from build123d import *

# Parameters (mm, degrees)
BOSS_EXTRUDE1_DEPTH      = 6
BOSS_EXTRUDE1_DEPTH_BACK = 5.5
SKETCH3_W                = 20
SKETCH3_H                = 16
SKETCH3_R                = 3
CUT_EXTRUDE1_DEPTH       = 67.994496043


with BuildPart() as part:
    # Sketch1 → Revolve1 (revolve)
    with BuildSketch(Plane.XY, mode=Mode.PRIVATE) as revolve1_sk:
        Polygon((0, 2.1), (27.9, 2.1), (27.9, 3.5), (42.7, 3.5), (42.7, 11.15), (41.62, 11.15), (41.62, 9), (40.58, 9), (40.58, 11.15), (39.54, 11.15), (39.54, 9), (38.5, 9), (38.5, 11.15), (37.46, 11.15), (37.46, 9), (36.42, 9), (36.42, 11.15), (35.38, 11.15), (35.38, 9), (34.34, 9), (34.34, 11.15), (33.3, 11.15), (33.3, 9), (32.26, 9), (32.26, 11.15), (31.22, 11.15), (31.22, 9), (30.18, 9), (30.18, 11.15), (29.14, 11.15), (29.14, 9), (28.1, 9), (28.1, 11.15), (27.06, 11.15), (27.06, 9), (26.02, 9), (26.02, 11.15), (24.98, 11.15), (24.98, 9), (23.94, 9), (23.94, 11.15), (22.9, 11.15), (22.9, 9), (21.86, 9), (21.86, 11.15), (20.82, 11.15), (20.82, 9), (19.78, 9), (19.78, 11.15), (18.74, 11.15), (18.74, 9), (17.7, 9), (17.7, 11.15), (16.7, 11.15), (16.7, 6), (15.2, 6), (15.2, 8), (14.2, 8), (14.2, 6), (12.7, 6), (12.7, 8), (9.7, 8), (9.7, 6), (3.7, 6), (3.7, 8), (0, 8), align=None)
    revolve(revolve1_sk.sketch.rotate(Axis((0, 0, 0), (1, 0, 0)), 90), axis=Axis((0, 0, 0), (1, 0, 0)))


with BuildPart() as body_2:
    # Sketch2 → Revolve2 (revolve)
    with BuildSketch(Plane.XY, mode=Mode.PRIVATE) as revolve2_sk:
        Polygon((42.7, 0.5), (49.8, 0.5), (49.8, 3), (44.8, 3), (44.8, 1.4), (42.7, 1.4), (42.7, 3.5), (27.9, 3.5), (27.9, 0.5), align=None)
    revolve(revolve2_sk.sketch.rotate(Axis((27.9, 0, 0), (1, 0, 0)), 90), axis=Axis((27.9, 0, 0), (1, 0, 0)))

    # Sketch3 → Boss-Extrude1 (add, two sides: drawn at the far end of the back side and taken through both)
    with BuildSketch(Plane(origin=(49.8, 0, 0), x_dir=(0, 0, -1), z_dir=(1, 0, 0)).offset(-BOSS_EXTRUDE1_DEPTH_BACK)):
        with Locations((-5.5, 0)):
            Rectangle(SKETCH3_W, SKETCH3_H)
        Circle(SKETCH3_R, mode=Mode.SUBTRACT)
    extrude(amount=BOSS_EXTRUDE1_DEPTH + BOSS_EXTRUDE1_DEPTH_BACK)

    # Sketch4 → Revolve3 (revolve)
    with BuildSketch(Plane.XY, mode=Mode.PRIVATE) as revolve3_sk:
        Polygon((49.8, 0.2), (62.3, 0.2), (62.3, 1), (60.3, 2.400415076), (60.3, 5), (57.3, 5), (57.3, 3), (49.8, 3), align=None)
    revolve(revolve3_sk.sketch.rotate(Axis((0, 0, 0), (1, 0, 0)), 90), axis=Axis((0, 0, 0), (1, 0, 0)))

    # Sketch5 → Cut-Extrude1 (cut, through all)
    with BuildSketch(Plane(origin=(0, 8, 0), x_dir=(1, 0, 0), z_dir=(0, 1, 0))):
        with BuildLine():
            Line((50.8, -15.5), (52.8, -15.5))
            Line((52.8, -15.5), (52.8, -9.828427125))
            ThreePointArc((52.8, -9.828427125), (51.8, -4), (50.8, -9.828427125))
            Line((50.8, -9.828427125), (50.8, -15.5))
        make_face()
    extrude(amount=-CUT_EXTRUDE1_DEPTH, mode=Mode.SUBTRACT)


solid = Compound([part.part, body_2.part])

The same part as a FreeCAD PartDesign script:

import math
import FreeCAD as App
import Part
import Sketcher
from FreeCAD import Vector
Q = App.Units.Quantity


def add_polygon(sketch, points):
    """Adds a closed chain of lines whose ends are joined by coincident constraints."""
    first, n = sketch.GeometryCount, len(points)
    for a, b in zip(points, points[1:] + points[:1]):
        sketch.addGeometry(Part.LineSegment(App.Vector(*a, 0), App.Vector(*b, 0)), False)
    for i in range(n):
        sketch.addConstraint(Sketcher.Constraint("Coincident", first + i, 2, first + (i + 1) % n, 1))

doc = App.newDocument("Part")
body = doc.addObject("PartDesign::Body", "Body")

# Sketch on XY plane
sketch1 = body.newObject("Sketcher::SketchObject", "Sketch")
sketch1.AttachmentSupport = (doc.getObject("XY_Plane"), [""])
sketch1.MapMode = "FlatFace"
add_polygon(sketch1, [(0, 2.1), (27.9, 2.1), (27.9, 3.5), (42.7, 3.5), (42.7, 11.2), (41.6, 11.2), (41.6, 9), (40.6, 9), (40.6, 11.2), (39.5, 11.2), (39.5, 9), (38.5, 9), (38.5, 11.2), (37.5, 11.2), (37.5, 9), (36.4, 9), (36.4, 11.2), (35.4, 11.2), (35.4, 9), (34.3, 9), (34.3, 11.2), (33.3, 11.2), (33.3, 9), (32.3, 9), (32.3, 11.2), (31.2, 11.2), (31.2, 9), (30.2, 9), (30.2, 11.2), (29.1, 11.2), (29.1, 9), (28.1, 9), (28.1, 11.2), (27.1, 11.2), (27.1, 9), (26, 9), (26, 11.2), (25, 11.2), (25, 9), (23.9, 9), (23.9, 11.2), (22.9, 11.2), (22.9, 9), (21.9, 9), (21.9, 11.2), (20.8, 11.2), (20.8, 9), (19.8, 9), (19.8, 11.2), (18.7, 11.2), (18.7, 9), (17.7, 9), (17.7, 11.2), (16.7, 11.2), (16.7, 6), (15.2, 6), (15.2, 8), (14.2, 8), (14.2, 6), (12.7, 6), (12.7, 8), (9.7, 8), (9.7, 6), (3.7, 6), (3.7, 8), (0, 8)])  # lines 0-65
sketch1.addConstraint([
    Sketcher.Constraint("Horizontal", 0),
    Sketcher.Constraint("Vertical", 1),
    Sketcher.Constraint("Horizontal", 2),
    Sketcher.Constraint("Vertical", 3),
    Sketcher.Constraint("Horizontal", 4),
    Sketcher.Constraint("Vertical", 5),
    Sketcher.Constraint("Horizontal", 6),
    Sketcher.Constraint("Vertical", 7),
    Sketcher.Constraint("Horizontal", 8),
    Sketcher.Constraint("Vertical", 9),
    Sketcher.Constraint("Horizontal", 10),
    Sketcher.Constraint("Vertical", 11),
    Sketcher.Constraint("Horizontal", 12),
    Sketcher.Constraint("Vertical", 13),
    Sketcher.Constraint("Horizontal", 14),
    Sketcher.Constraint("Vertical", 15),
    Sketcher.Constraint("Horizontal", 16),
    Sketcher.Constraint("Vertical", 17),
    Sketcher.Constraint("Horizontal", 18),
    Sketcher.Constraint("Vertical", 19),
    Sketcher.Constraint("Horizontal", 20),
    Sketcher.Constraint("Vertical", 21),
    Sketcher.Constraint("Horizontal", 22),
    Sketcher.Constraint("Vertical", 23),
    Sketcher.Constraint("Horizontal", 24),
    Sketcher.Constraint("Vertical", 25),
    Sketcher.Constraint("Horizontal", 26),
    Sketcher.Constraint("Vertical", 27),
    Sketcher.Constraint("Horizontal", 28),
    Sketcher.Constraint("Vertical", 29),
    Sketcher.Constraint("Horizontal", 30),
    Sketcher.Constraint("Vertical", 31),
    Sketcher.Constraint("Horizontal", 32),
    Sketcher.Constraint("Vertical", 33),
    Sketcher.Constraint("Horizontal", 34),
    Sketcher.Constraint("Vertical", 35),
    Sketcher.Constraint("Horizontal", 36),
    Sketcher.Constraint("Vertical", 37),
    Sketcher.Constraint("Horizontal", 38),
    Sketcher.Constraint("Vertical", 39),
    Sketcher.Constraint("Horizontal", 40),
    Sketcher.Constraint("Vertical", 41),
    Sketcher.Constraint("Horizontal", 42),
    Sketcher.Constraint("Vertical", 43),
    Sketcher.Constraint("Horizontal", 44),
    Sketcher.Constraint("Vertical", 45),
    Sketcher.Constraint("Horizontal", 46),
    Sketcher.Constraint("Vertical", 47),
    Sketcher.Constraint("Horizontal", 48),
    Sketcher.Constraint("Vertical", 49),
    Sketcher.Constraint("Horizontal", 50),
    Sketcher.Constraint("Vertical", 51),
    Sketcher.Constraint("Horizontal", 52),
    Sketcher.Constraint("Vertical", 53),
    Sketcher.Constraint("Horizontal", 54),
    Sketcher.Constraint("Vertical", 55),
    Sketcher.Constraint("Horizontal", 56),
    Sketcher.Constraint("Vertical", 57),
    Sketcher.Constraint("Horizontal", 58),
    Sketcher.Constraint("Vertical", 59),
    Sketcher.Constraint("Horizontal", 60),
    Sketcher.Constraint("Vertical", 61),
    Sketcher.Constraint("Horizontal", 62),
    Sketcher.Constraint("Vertical", 63),
    Sketcher.Constraint("Horizontal", 64),
    Sketcher.Constraint("Vertical", 65),
    Sketcher.Constraint("PointOnObject", 64, 2, -2),
    Sketcher.Constraint("Horizontal", 4, 2, 7, 2),
    Sketcher.Constraint("Horizontal", 6, 2, 9, 2),
    Sketcher.Constraint("Horizontal", 8, 2, 11, 2),
    Sketcher.Constraint("Horizontal", 10, 2, 13, 2),
    Sketcher.Constraint("Horizontal", 12, 2, 15, 2),
    Sketcher.Constraint("Horizontal", 14, 2, 17, 2),
    Sketcher.Constraint("Horizontal", 16, 2, 19, 2),
    Sketcher.Constraint("Horizontal", 18, 2, 21, 2),
    Sketcher.Constraint("Horizontal", 20, 2, 23, 2),
    Sketcher.Constraint("Horizontal", 22, 2, 25, 2),
    Sketcher.Constraint("Horizontal", 24, 2, 27, 2),
    Sketcher.Constraint("Horizontal", 26, 2, 29, 2),
    Sketcher.Constraint("Horizontal", 28, 2, 31, 2),
    Sketcher.Constraint("Horizontal", 30, 2, 33, 2),
    Sketcher.Constraint("Horizontal", 32, 2, 35, 2),
    Sketcher.Constraint("Horizontal", 34, 2, 37, 2),
    Sketcher.Constraint("Horizontal", 36, 2, 39, 2),
    Sketcher.Constraint("Horizontal", 38, 2, 41, 2),
    Sketcher.Constraint("Horizontal", 40, 2, 43, 2),
    Sketcher.Constraint("Horizontal", 42, 2, 45, 2),
    Sketcher.Constraint("Horizontal", 44, 2, 47, 2),
    Sketcher.Constraint("Horizontal", 46, 2, 49, 2),
    Sketcher.Constraint("Horizontal", 48, 2, 51, 2),
    Sketcher.Constraint("Horizontal", 54, 2, 57, 2),
    Sketcher.Constraint("Horizontal", 56, 2, 59, 2),
    Sketcher.Constraint("Horizontal", 58, 2, 61, 2),
    Sketcher.Constraint("Horizontal", 60, 2, 63, 2),
    Sketcher.Constraint("Equal", 6, 8),
    Sketcher.Constraint("Equal", 8, 10),
    Sketcher.Constraint("Equal", 10, 12),
    Sketcher.Constraint("Equal", 12, 14),
    Sketcher.Constraint("Equal", 14, 16),
    Sketcher.Constraint("Equal", 16, 18),
    Sketcher.Constraint("Equal", 18, 20),
    Sketcher.Constraint("Equal", 20, 22),
    Sketcher.Constraint("Equal", 22, 24),
    Sketcher.Constraint("Equal", 24, 26),
    Sketcher.Constraint("Equal", 26, 28),
    Sketcher.Constraint("Equal", 28, 30),
    Sketcher.Constraint("Equal", 30, 32),
    Sketcher.Constraint("Equal", 32, 34),
    Sketcher.Constraint("Equal", 34, 36),
    Sketcher.Constraint("Equal", 36, 38),
    Sketcher.Constraint("Equal", 38, 40),
    Sketcher.Constraint("Equal", 40, 42),
    Sketcher.Constraint("Equal", 42, 44),
    Sketcher.Constraint("Equal", 44, 46),
    Sketcher.Constraint("Equal", 46, 48),
    Sketcher.Constraint("Equal", 48, 50),
    Sketcher.Constraint("Equal", 52, 56),
    Sketcher.Constraint("Equal", 54, 58),
    Sketcher.Constraint("DistanceX", 52, 2, 52, 1, 1.0),
    Sketcher.Constraint("DistanceX", 60, 2, 60, 1, 3.0),
    Sketcher.Constraint("DistanceX", 62, 2, 62, 1, 6.0),
    Sketcher.Constraint("DistanceY", 55, 1, 55, 2, 2.0),
    Sketcher.Constraint("DistanceX", 0, 1, 0, 2, 27.9),
    Sketcher.Constraint("DistanceX", 2, 1, 2, 2, 14.8),
    Sketcher.Constraint("DistanceX", 54, 2, 54, 1, 1.5),
    Sketcher.Constraint("DistanceX", 64, 2, 64, 1, 3.7),
    Sketcher.Constraint("DistanceY", 1, 1, 1, 2, 1.4),
    Sketcher.Constraint("DistanceY", 65, 2, 65, 1, 5.9),
    Sketcher.Constraint("DistanceY", -1, 1, 5, 2, 9.0),
    Sketcher.Constraint("DistanceY", -1, 1, 53, 2, 6.0),
    Sketcher.Constraint("DistanceX", 4, 2, 4, 1, 1.08),
    Sketcher.Constraint("DistanceY", 3, 1, 3, 2, 7.65),
])
revolution = body.newObject("PartDesign::Revolution", "Revolution")
revolution.Profile = sketch1
revolution.ReferenceAxis = (sketch1, ["H_Axis"])
revolution.Angle = 360
body2 = doc.addObject("PartDesign::Body", "Body001")

# Sketch on XY plane
sketch2 = body2.newObject("Sketcher::SketchObject", "Sketch001")
sketch2.AttachmentSupport = (doc.getObject("XY_Plane001"), [""])
sketch2.MapMode = "FlatFace"
add_polygon(sketch2, [(49.8, 0.5), (49.8, 3), (44.8, 3), (44.8, 1.4), (42.7, 1.4), (42.7, 3.5), (27.9, 3.5), (27.9, 0.5)])  # lines 0-7
sketch2.addConstraint([
    Sketcher.Constraint("Vertical", 0),
    Sketcher.Constraint("Horizontal", 1),
    Sketcher.Constraint("Vertical", 2),
    Sketcher.Constraint("Horizontal", 3),
    Sketcher.Constraint("Vertical", 4),
    Sketcher.Constraint("Horizontal", 5),
    Sketcher.Constraint("Vertical", 6),
    Sketcher.Constraint("Horizontal", 7),
    Sketcher.Constraint("Equal", 3, 4),
    Sketcher.Constraint("DistanceX", 1, 2, 1, 1, 5.0),
    Sketcher.Constraint("DistanceY", 6, 2, 6, 1, 3.0),
    Sketcher.Constraint("DistanceX", 3, 2, 3, 1, 2.1),
    Sketcher.Constraint("DistanceX", 5, 2, 5, 1, 14.8),
    Sketcher.Constraint("DistanceY", 0, 1, 0, 2, 2.5),
    Sketcher.Constraint("DistanceY", -1, 1, 0, 2, 3.0),
    Sketcher.Constraint("DistanceX", -1, 1, 0, 2, 49.8),
])
revolution2 = body2.newObject("PartDesign::Revolution", "Revolution001")
revolution2.Profile = sketch2
revolution2.ReferenceAxis = (sketch2, ["H_Axis"])
revolution2.Angle = 360

# Sketch on YZ plane
sketch3 = body2.newObject("Sketcher::SketchObject", "Sketch002")
sketch3.AttachmentSupport = (doc.getObject("YZ_Plane001"), [""])
sketch3.MapMode = "FlatFace"
sketch3.AttachmentOffset = App.Placement(Vector(0, 0, 49.8), App.Rotation())
add_polygon(sketch3, [(8, 15.5), (-8, 15.5), (-8, -4.5), (8, -4.5)])  # lines 0-3
sketch3.addGeometry(Part.Circle(Vector(0, 0, 0), Vector(0, 0, 1), 3), False)  # 4
sketch3.addConstraint([
    Sketcher.Constraint("Horizontal", 0),
    Sketcher.Constraint("Vertical", 1),
    Sketcher.Constraint("Horizontal", 2),
    Sketcher.Constraint("Vertical", 3),
    Sketcher.Constraint("Coincident", 4, 3, -1, 1),
    Sketcher.Constraint("Diameter", 4, 6.0),
    Sketcher.Constraint("DistanceX", 0, 2, 0, 1, 16.0),
    Sketcher.Constraint("DistanceY", 1, 2, 1, 1, 20.0),
    Sketcher.Constraint("DistanceX", 0, 2, -1, 1, 8.0),
    Sketcher.Constraint("DistanceY", -1, 1, 0, 2, 15.5),
])
pad1 = body2.newObject("PartDesign::Pad", "Pad")
pad1.Profile = sketch3
pad1.Type = "TwoLengths"
pad1.Length = 6
pad1.Length2 = 5.5

# Sketch on XY plane
sketch4 = body2.newObject("Sketcher::SketchObject", "Sketch003")
sketch4.AttachmentSupport = (doc.getObject("XY_Plane001"), [""])
sketch4.MapMode = "FlatFace"
add_polygon(sketch4, [(49.8, 0.2), (62.3, 0.2), (62.3, 1), (60.3, 2.4), (60.3, 5), (57.3, 5), (57.3, 3), (49.8, 3)])  # lines 0-7
sketch4.addConstraint([
    Sketcher.Constraint("Horizontal", 0),
    Sketcher.Constraint("Vertical", 1),
    Sketcher.Constraint("Vertical", 3),
    Sketcher.Constraint("Horizontal", 4),
    Sketcher.Constraint("Vertical", 5),
    Sketcher.Constraint("Horizontal", 6),
    Sketcher.Constraint("Vertical", 7),
    Sketcher.Constraint("DistanceX", 4, 2, 4, 1, 3.0),
    Sketcher.Constraint("DistanceY", 5, 2, 5, 1, 2.0),
    Sketcher.Constraint("Angle", 2, Q("145 deg")),
    Sketcher.Constraint("DistanceX", 0, 1, 0, 2, 12.5),
    Sketcher.Constraint("DistanceX", 6, 2, 6, 1, 7.5),
    Sketcher.Constraint("DistanceY", 1, 1, 1, 2, 0.8),
    Sketcher.Constraint("DistanceY", 7, 2, 7, 1, 2.8),
    Sketcher.Constraint("DistanceY", -1, 1, 1, 2, 1.0),
    Sketcher.Constraint("DistanceX", -1, 1, 0, 2, 62.3),
])
revolution3 = body2.newObject("PartDesign::Revolution", "Revolution002")
revolution3.Profile = sketch4
revolution3.ReferenceAxis = (sketch4, ["H_Axis"])
revolution3.Angle = 360

# Sketch on XZ plane
sketch5 = body2.newObject("Sketcher::SketchObject", "Sketch004")
sketch5.AttachmentSupport = (doc.getObject("XZ_Plane001"), [""])
sketch5.MapMode = "FlatFace"
sketch5.AttachmentOffset = App.Placement(Vector(0, 0, -8), App.Rotation())
sketch5.addGeometry([
    Part.LineSegment(Vector(50.8, 15.5, 0), Vector(52.8, 15.5, 0)),
    Part.LineSegment(Vector(52.8, 15.5, 0), Vector(52.8, 9.8, 0)),
    Part.ArcOfCircle(Part.Circle(Vector(51.8, 7, 0), Vector(0, 0, 1), 3), math.radians(109), math.radians(431)),
    Part.LineSegment(Vector(50.8, 9.8, 0), Vector(50.8, 15.5, 0)),
], False)
sketch5.addConstraint([
    Sketcher.Constraint("Coincident", 0, 2, 1, 1),
    Sketcher.Constraint("Coincident", 1, 2, 2, 2),
    Sketcher.Constraint("Coincident", 2, 1, 3, 1),
    Sketcher.Constraint("Coincident", 3, 2, 0, 1),
    Sketcher.Constraint("Horizontal", 0),
    Sketcher.Constraint("Vertical", 1),
    Sketcher.Constraint("Vertical", 3),
    Sketcher.Constraint("Horizontal", 1, 2, 2, 1),
    Sketcher.Constraint("Radius", 2, 3.0),
    Sketcher.Constraint("DistanceX", 0, 1, 0, 2, 2.0),
    Sketcher.Constraint("DistanceY", -1, 1, 2, 3, 7.0),
    Sketcher.Constraint("DistanceX", -1, 1, 2, 3, 51.8),
    Sketcher.Constraint("DistanceY", -1, 1, 0, 2, 15.5),
])
pocket1 = body2.newObject("PartDesign::Pocket", "Pocket")
pocket1.Profile = sketch5
pocket1.Type = "ThroughAll"
pocket1.Reversed = True

doc.recompute()
